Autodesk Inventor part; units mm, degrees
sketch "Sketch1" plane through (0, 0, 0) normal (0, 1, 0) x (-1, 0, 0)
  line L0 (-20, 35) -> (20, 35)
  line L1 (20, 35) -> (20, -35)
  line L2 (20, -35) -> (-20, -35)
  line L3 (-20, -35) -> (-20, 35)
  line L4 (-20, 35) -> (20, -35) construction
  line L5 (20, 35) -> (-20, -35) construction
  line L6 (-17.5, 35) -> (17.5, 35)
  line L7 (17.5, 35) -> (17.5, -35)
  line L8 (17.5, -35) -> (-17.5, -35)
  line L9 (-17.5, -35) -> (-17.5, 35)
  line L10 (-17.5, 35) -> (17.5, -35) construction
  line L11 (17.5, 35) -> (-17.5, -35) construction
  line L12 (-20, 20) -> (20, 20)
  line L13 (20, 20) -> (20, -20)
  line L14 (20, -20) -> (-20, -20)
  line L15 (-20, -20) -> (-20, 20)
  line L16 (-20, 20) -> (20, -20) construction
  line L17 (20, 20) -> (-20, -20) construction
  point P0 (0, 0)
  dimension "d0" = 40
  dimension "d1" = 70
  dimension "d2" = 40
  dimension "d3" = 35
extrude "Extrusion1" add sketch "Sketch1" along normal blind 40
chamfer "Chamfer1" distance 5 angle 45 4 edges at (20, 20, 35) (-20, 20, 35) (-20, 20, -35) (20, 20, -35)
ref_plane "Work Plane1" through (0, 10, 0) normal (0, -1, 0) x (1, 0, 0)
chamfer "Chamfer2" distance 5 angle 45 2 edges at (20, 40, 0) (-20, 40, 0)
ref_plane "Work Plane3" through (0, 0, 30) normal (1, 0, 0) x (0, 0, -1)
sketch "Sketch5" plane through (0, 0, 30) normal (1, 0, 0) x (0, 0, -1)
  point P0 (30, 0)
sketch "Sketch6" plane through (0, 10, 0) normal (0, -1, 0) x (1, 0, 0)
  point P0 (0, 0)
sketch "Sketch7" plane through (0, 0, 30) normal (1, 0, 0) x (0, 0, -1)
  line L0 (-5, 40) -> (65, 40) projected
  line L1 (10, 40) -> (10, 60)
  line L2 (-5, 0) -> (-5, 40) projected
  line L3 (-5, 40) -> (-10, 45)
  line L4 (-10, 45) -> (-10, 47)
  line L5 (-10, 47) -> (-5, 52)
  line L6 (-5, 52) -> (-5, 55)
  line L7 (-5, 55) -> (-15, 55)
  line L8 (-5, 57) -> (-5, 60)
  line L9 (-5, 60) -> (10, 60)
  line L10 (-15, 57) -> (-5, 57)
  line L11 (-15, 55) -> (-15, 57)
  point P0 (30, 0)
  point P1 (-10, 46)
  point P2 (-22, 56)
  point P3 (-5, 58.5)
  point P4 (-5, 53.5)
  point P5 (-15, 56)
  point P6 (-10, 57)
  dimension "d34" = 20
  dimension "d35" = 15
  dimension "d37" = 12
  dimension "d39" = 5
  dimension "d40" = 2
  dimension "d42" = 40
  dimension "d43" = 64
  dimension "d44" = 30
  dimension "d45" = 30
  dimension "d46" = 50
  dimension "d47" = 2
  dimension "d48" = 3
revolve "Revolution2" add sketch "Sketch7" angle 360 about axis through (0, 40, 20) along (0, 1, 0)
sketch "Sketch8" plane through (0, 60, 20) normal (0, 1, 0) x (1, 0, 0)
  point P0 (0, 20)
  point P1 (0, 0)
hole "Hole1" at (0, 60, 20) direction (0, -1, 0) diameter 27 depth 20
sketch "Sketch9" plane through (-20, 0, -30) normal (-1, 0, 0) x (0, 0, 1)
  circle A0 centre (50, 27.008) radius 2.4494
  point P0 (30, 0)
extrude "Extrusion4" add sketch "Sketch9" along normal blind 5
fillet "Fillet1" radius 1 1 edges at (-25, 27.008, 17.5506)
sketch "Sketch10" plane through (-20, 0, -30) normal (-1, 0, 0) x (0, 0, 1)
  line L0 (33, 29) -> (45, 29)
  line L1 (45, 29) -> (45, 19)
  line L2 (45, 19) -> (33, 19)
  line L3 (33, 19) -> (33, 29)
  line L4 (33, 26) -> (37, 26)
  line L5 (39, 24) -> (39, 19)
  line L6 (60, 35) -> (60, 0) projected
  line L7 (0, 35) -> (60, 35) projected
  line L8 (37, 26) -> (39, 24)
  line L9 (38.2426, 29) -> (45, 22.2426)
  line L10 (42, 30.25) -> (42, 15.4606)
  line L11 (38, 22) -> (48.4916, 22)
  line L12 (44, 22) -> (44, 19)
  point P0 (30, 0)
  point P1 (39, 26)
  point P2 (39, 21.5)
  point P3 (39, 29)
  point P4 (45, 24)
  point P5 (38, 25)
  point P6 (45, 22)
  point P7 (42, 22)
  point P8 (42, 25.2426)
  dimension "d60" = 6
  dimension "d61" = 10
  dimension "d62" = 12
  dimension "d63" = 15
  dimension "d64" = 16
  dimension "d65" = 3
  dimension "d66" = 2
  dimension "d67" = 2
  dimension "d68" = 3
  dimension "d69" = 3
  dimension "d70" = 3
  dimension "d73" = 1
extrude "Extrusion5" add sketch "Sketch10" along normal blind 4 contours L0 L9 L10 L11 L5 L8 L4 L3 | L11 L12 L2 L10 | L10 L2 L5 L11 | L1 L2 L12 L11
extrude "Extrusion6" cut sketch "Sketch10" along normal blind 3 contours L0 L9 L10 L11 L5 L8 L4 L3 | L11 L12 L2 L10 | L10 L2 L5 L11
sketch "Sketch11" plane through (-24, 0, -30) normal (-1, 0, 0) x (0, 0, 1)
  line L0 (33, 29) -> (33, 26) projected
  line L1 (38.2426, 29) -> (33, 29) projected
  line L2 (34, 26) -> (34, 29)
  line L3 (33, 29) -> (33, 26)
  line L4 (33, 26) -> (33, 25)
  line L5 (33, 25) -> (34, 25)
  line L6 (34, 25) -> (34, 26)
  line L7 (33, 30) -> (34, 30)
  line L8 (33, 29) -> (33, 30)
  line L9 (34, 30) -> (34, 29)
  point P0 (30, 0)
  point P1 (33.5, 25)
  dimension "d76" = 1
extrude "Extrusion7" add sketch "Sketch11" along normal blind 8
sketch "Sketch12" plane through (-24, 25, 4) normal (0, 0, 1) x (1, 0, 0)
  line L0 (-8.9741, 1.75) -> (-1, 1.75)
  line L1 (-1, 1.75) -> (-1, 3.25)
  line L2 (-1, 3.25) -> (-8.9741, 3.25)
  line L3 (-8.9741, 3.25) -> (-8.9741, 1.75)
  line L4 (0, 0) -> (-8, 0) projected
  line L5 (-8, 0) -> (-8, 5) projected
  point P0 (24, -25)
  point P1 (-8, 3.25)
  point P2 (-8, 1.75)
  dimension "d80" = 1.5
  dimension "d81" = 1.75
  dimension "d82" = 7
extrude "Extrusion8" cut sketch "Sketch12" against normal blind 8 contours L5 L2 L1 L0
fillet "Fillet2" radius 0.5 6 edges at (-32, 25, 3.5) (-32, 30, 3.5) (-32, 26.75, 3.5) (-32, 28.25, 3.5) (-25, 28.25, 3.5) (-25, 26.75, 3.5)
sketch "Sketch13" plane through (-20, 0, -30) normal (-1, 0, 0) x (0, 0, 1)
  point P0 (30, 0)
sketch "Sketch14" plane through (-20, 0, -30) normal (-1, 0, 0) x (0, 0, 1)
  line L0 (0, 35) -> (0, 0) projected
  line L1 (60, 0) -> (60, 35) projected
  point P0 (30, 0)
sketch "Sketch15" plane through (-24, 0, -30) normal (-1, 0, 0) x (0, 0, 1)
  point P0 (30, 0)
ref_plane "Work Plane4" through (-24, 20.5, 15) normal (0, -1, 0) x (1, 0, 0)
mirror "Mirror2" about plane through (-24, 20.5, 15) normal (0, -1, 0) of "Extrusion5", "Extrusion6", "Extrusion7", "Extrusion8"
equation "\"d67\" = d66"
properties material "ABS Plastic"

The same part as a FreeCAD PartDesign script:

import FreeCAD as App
import Part
import Sketcher
Q = App.Units.Quantity


def edges_at(feature, points):
    """Names of the edges that pass closest to the given points."""
    edges = feature.Shape.Edges
    near = lambda p: min(range(len(edges)), key=lambda i: edges[i].distToShape(Part.Vertex(*p))[0])
    return sorted({f"Edge{near(p) + 1}" for p in points})

doc = App.newDocument("Part")
body = doc.addObject("PartDesign::Body", "Body")

# Sketch on XZ plane
sketch1 = body.newObject("Sketcher::SketchObject", "Sketch")
sketch1.AttachmentSupport = (doc.getObject("XZ_Plane"), [""])
sketch1.MapMode = "FlatFace"
sketch1.addGeometry(Part.LineSegment(App.Vector(20, 35, 0), App.Vector(20, -35, 0)), False)
sketch1.addGeometry(Part.LineSegment(App.Vector(20, -35, 0), App.Vector(-20, -35, 0)), False)
sketch1.addGeometry(Part.LineSegment(App.Vector(-20, -35, 0), App.Vector(-20, 35, 0)), False)
sketch1.addGeometry(Part.LineSegment(App.Vector(-20, 35, 0), App.Vector(20, 35, 0)), False)
sketch1.addConstraint(Sketcher.Constraint("Coincident", 0, 2, 1, 1))
sketch1.addConstraint(Sketcher.Constraint("Coincident", 1, 2, 2, 1))
sketch1.addConstraint(Sketcher.Constraint("Coincident", 2, 2, 3, 1))
sketch1.addConstraint(Sketcher.Constraint("Coincident", 3, 2, 0, 1))
sketch1.addConstraint(Sketcher.Constraint("Vertical", 0))
sketch1.addConstraint(Sketcher.Constraint("Horizontal", 1))
sketch1.addConstraint(Sketcher.Constraint("Vertical", 2))
sketch1.addConstraint(Sketcher.Constraint("Horizontal", 3))
sketch1.addConstraint(Sketcher.Constraint("Symmetric", 0, 2, 2, 2, -1, 1))
sketch1.addConstraint(Sketcher.Constraint("DistanceX", 1, 2, 1, 1, Q("40 mm")))
sketch1.addConstraint(Sketcher.Constraint("DistanceY", 0, 2, 0, 1, Q("70 mm")))
pad1 = body.newObject("PartDesign::Pad", "Pad")
pad1.Profile = sketch1
pad1.Length = 40
pad1.Reversed = True
doc.recompute()

chamfer = body.newObject("PartDesign::Chamfer", "Chamfer")
chamfer.Base = (pad1, edges_at(pad1, [
    (20, 20, 35),
    (-20, 20, 35),
    (-20, 20, -35),
    (20, 20, -35),
]))
chamfer.Size = 5
doc.recompute()

chamfer2 = body.newObject("PartDesign::Chamfer", "Chamfer001")
chamfer2.Base = (chamfer, edges_at(chamfer, [(20, 40, 0), (-20, 40, 0)]))
chamfer2.Size = 5

# Sketch on YZ plane
sketch2 = body.newObject("Sketcher::SketchObject", "Sketch001")
sketch2.AttachmentSupport = (doc.getObject("YZ_Plane"), [""])
sketch2.MapMode = "FlatFace"
sketch2.addGeometry(Part.LineSegment(App.Vector(45, 40, 0), App.Vector(40, 35, 0)), False)
sketch2.addGeometry(Part.LineSegment(App.Vector(40, 35, 0), App.Vector(40, 20, 0)), False)
sketch2.addGeometry(Part.LineSegment(App.Vector(40, 20, 0), App.Vector(60, 20, 0)), False)
sketch2.addGeometry(Part.LineSegment(App.Vector(60, 20, 0), App.Vector(60, 35, 0)), False)
sketch2.addGeometry(Part.LineSegment(App.Vector(60, 35, 0), App.Vector(57, 35, 0)), False)
sketch2.addGeometry(Part.LineSegment(App.Vector(57, 35, 0), App.Vector(57, 45, 0)), False)
sketch2.addGeometry(Part.LineSegment(App.Vector(57, 45, 0), App.Vector(55, 45, 0)), False)
sketch2.addGeometry(Part.LineSegment(App.Vector(55, 45, 0), App.Vector(55, 35, 0)), False)
sketch2.addGeometry(Part.LineSegment(App.Vector(55, 35, 0), App.Vector(52, 35, 0)), False)
sketch2.addGeometry(Part.LineSegment(App.Vector(52, 35, 0), App.Vector(47, 40, 0)), False)
sketch2.addGeometry(Part.LineSegment(App.Vector(47, 40, 0), App.Vector(45, 40, 0)), False)
sketch2.addGeometry(Part.LineSegment(App.Vector(40, 20, 0), App.Vector(60, 20, 0)), True)  # axis
sketch2.addConstraint(Sketcher.Constraint("Coincident", 0, 2, 1, 1))
sketch2.addConstraint(Sketcher.Constraint("Coincident", 1, 2, 2, 1))
sketch2.addConstraint(Sketcher.Constraint("Coincident", 2, 2, 3, 1))
sketch2.addConstraint(Sketcher.Constraint("Coincident", 3, 2, 4, 1))
sketch2.addConstraint(Sketcher.Constraint("Coincident", 4, 2, 5, 1))
sketch2.addConstraint(Sketcher.Constraint("Coincident", 5, 2, 6, 1))
sketch2.addConstraint(Sketcher.Constraint("Coincident", 6, 2, 7, 1))
sketch2.addConstraint(Sketcher.Constraint("Coincident", 7, 2, 8, 1))
sketch2.addConstraint(Sketcher.Constraint("Coincident", 8, 2, 9, 1))
sketch2.addConstraint(Sketcher.Constraint("Coincident", 9, 2, 10, 1))
sketch2.addConstraint(Sketcher.Constraint("Coincident", 10, 2, 0, 1))
sketch2.addConstraint(Sketcher.Constraint("Vertical", 1))
sketch2.addConstraint(Sketcher.Constraint("Horizontal", 2))
sketch2.addConstraint(Sketcher.Constraint("Vertical", 3))
sketch2.addConstraint(Sketcher.Constraint("Horizontal", 4))
sketch2.addConstraint(Sketcher.Constraint("Vertical", 5))
sketch2.addConstraint(Sketcher.Constraint("Horizontal", 6))
sketch2.addConstraint(Sketcher.Constraint("Vertical", 7))
sketch2.addConstraint(Sketcher.Constraint("Horizontal", 8))
sketch2.addConstraint(Sketcher.Constraint("Horizontal", 10))
sketch2.addConstraint(Sketcher.Constraint("Horizontal", 11))
sketch2.addConstraint(Sketcher.Constraint("Coincident", 11, 1, 1, 2))
sketch2.addConstraint(Sketcher.Constraint("Perpendicular", 0, 9))
sketch2.addConstraint(Sketcher.Constraint("Horizontal", 0, 2, 3, 2))
sketch2.addConstraint(Sketcher.Constraint("Horizontal", 4, 2, 7, 2))
sketch2.addConstraint(Sketcher.Constraint("Vertical", 3, 2, 11, 2))
sketch2.addConstraint(Sketcher.Constraint("Equal", 4, 8))
sketch2.addConstraint(Sketcher.Constraint("Equal", 6, 10))
sketch2.addConstraint(Sketcher.Constraint("Equal", 0, 9))
sketch2.addConstraint(Sketcher.Constraint("DistanceX", 2, 1, 2, 2, Q("20 mm")))
sketch2.addConstraint(Sketcher.Constraint("DistanceX", 4, 2, 4, 1, Q("3 mm")))
sketch2.addConstraint(Sketcher.Constraint("DistanceX", 6, 2, 6, 1, Q("2 mm")))
sketch2.addConstraint(Sketcher.Constraint("DistanceY", 1, 2, 1, 1, Q("15 mm")))
sketch2.addConstraint(Sketcher.Constraint("DistanceX", -1, 1, 0, 2, Q("40 mm")))
sketch2.addConstraint(Sketcher.Constraint("DistanceY", -1, 1, 1, 2, Q("20 mm")))
sketch2.addConstraint(Sketcher.Constraint("DistanceY", 9, 2, 6, 2, Q("5 mm")))
revolution = body.newObject("PartDesign::Revolution", "Revolution")
revolution.Profile = sketch2
revolution.ReferenceAxis = (sketch2, ["Axis0"])
revolution.Angle = 360

# Sketch on XZ plane
sketch3 = body.newObject("Sketcher::SketchObject", "Sketch002")
sketch3.AttachmentSupport = (doc.getObject("XZ_Plane"), [""])
sketch3.MapMode = "FlatFace"
sketch3.AttachmentOffset = App.Placement(App.Vector(0, 0, -60), App.Rotation())
sketch3.addGeometry(Part.Circle(App.Vector(0, 20, 0), App.Vector(0, 0, 1), 13.5), False)
sketch3.addConstraint(Sketcher.Constraint("PointOnObject", 0, 3, -2))
sketch3.addConstraint(Sketcher.Constraint("Diameter", 0, Q("27 mm")))
sketch3.addConstraint(Sketcher.Constraint("DistanceY", -1, 1, 0, 3, Q("20 mm")))
doc.recompute()
hole = body.newObject("PartDesign::Hole", "Hole")
hole.Profile = sketch3
hole.ThreadType = "None"
hole.Diameter = 27
hole.DepthType = "Dimension"
hole.Depth = 20
hole.DrillPoint = "Flat"
hole.Reversed = True

# Sketch on YZ plane
sketch4 = body.newObject("Sketcher::SketchObject", "Sketch003")
sketch4.AttachmentSupport = (doc.getObject("YZ_Plane"), [""])
sketch4.MapMode = "FlatFace"
sketch4.AttachmentOffset = App.Placement(App.Vector(0, 0, -20), App.Rotation())
sketch4.addGeometry(Part.Circle(App.Vector(27.008, 20, 0), App.Vector(0, 0, 1), 2.4494), False)
sketch4.addConstraint(Sketcher.Constraint("DistanceY", -1, 1, 0, 3, Q("20 mm")))
sketch4.addConstraint(Sketcher.Constraint("Diameter", 0, Q("4.8988 mm")))
sketch4.addConstraint(Sketcher.Constraint("DistanceX", -1, 1, 0, 3, Q("27.008 mm")))
pad2 = body.newObject("PartDesign::Pad", "Pad001")
pad2.Profile = sketch4
pad2.Length = 5
pad2.Reversed = True
doc.recompute()

fillet = body.newObject("PartDesign::Fillet", "Fillet")
fillet.Base = (pad2, edges_at(pad2, [(-25, 27.008, 17.551)]))
fillet.Radius = 1

# Sketch on YZ plane
sketch5 = body.newObject("Sketcher::SketchObject", "Sketch004")
sketch5.AttachmentSupport = (doc.getObject("YZ_Plane"), [""])
sketch5.MapMode = "FlatFace"
sketch5.AttachmentOffset = App.Placement(App.Vector(0, 0, -20), App.Rotation())
sketch5.addGeometry(Part.LineSegment(App.Vector(29, 8.2426, 0), App.Vector(29, 3, 0)), False)
sketch5.addGeometry(Part.LineSegment(App.Vector(29, 3, 0), App.Vector(26, 3, 0)), False)
sketch5.addGeometry(Part.LineSegment(App.Vector(26, 3, 0), App.Vector(26, 7, 0)), False)
sketch5.addGeometry(Part.LineSegment(App.Vector(26, 7, 0), App.Vector(24, 9, 0)), False)
sketch5.addGeometry(Part.LineSegment(App.Vector(24, 9, 0), App.Vector(19, 9, 0)), False)
sketch5.addGeometry(Part.LineSegment(App.Vector(19, 9, 0), App.Vector(19, 15, 0)), False)
sketch5.addGeometry(Part.LineSegment(App.Vector(19, 15, 0), App.Vector(22, 15, 0)), False)
sketch5.addGeometry(Part.LineSegment(App.Vector(22, 15, 0), App.Vector(22, 12, 0)), False)
sketch5.addGeometry(Part.LineSegment(App.Vector(22, 12, 0), App.Vector(25.2426, 12, 0)), False)
sketch5.addGeometry(Part.LineSegment(App.Vector(25.2426, 12, 0), App.Vector(29, 8.2426, 0)), False)
sketch5.addConstraint(Sketcher.Constraint("Coincident", 0, 2, 1, 1))
sketch5.addConstraint(Sketcher.Constraint("Coincident", 1, 2, 2, 1))
sketch5.addConstraint(Sketcher.Constraint("Coincident", 2, 2, 3, 1))
sketch5.addConstraint(Sketcher.Constraint("Coincident", 3, 2, 4, 1))
sketch5.addConstraint(Sketcher.Constraint("Coincident", 4, 2, 5, 1))
sketch5.addConstraint(Sketcher.Constraint("Coincident", 5, 2, 6, 1))
sketch5.addConstraint(Sketcher.Constraint("Coincident", 6, 2, 7, 1))
sketch5.addConstraint(Sketcher.Constraint("Coincident", 7, 2, 8, 1))
sketch5.addConstraint(Sketcher.Constraint("Coincident", 8, 2, 9, 1))
sketch5.addConstraint(Sketcher.Constraint("Coincident", 9, 2, 0, 1))
sketch5.addConstraint(Sketcher.Constraint("Vertical", 0))
sketch5.addConstraint(Sketcher.Constraint("Horizontal", 1))
sketch5.addConstraint(Sketcher.Constraint("Vertical", 2))
sketch5.addConstraint(Sketcher.Constraint("Horizontal", 4))
sketch5.addConstraint(Sketcher.Constraint("Vertical", 5))
sketch5.addConstraint(Sketcher.Constraint("Horizontal", 6))
sketch5.addConstraint(Sketcher.Constraint("Vertical", 7))
sketch5.addConstraint(Sketcher.Constraint("Horizontal", 8))
sketch5.addConstraint(Sketcher.Constraint("Parallel", 3, 9))
sketch5.addConstraint(Sketcher.Constraint("Equal", 1, 6))
sketch5.addConstraint(Sketcher.Constraint("Equal", 6, 7))
sketch5.addConstraint(Sketcher.Constraint("DistanceX", 1, 2, 1, 1, Q("3 mm")))
sketch5.addConstraint(Sketcher.Constraint("DistanceY", 5, 1, 5, 2, Q("6 mm")))
sketch5.addConstraint(Sketcher.Constraint("DistanceY", -1, 1, 0, 2, Q("3 mm")))
sketch5.addConstraint(Sketcher.Constraint("DistanceY", -1, 1, 5, 2, Q("15 mm")))
sketch5.addConstraint(Sketcher.Constraint("DistanceX", 3, 2, 2, 2, Q("2 mm")))
sketch5.addConstraint(Sketcher.Constraint("DistanceY", 2, 2, 3, 2, Q("2 mm")))
sketch5.addConstraint(Sketcher.Constraint("DistanceX", 4, 2, 0, 2, Q("10 mm")))
sketch5.addConstraint(Sketcher.Constraint("DistanceX", -1, 1, 0, 2, Q("29 mm")))
sketch5.addConstraint(Sketcher.Constraint("DistanceX", 8, 1, 8, 2, Q("3.2426 mm")))
pad3 = body.newObject("PartDesign::Pad", "Pad002")
pad3.Profile = sketch5
pad3.Length = 4
pad3.Reversed = True

# Sketch on YZ plane
sketch6 = body.newObject("Sketcher::SketchObject", "Sketch005")
sketch6.AttachmentSupport = (doc.getObject("YZ_Plane"), [""])
sketch6.MapMode = "FlatFace"
sketch6.AttachmentOffset = App.Placement(App.Vector(0, 0, -20), App.Rotation())
sketch6.addGeometry(Part.LineSegment(App.Vector(29, 8.2426, 0), App.Vector(29, 3, 0)), False)
sketch6.addGeometry(Part.LineSegment(App.Vector(29, 3, 0), App.Vector(26, 3, 0)), False)
sketch6.addGeometry(Part.LineSegment(App.Vector(26, 3, 0), App.Vector(26, 7, 0)), False)
sketch6.addGeometry(Part.LineSegment(App.Vector(26, 7, 0), App.Vector(24, 9, 0)), False)
sketch6.addGeometry(Part.LineSegment(App.Vector(24, 9, 0), App.Vector(19, 9, 0)), False)
sketch6.addGeometry(Part.LineSegment(App.Vector(19, 9, 0), App.Vector(19, 14, 0)), False)
sketch6.addGeometry(Part.LineSegment(App.Vector(19, 14, 0), App.Vector(22, 14, 0)), False)
sketch6.addGeometry(Part.LineSegment(App.Vector(22, 14, 0), App.Vector(22, 12, 0)), False)
sketch6.addGeometry(Part.LineSegment(App.Vector(22, 12, 0), App.Vector(25.2426, 12, 0)), False)
sketch6.addGeometry(Part.LineSegment(App.Vector(25.2426, 12, 0), App.Vector(29, 8.2426, 0)), False)
sketch6.addConstraint(Sketcher.Constraint("Coincident", 0, 2, 1, 1))
sketch6.addConstraint(Sketcher.Constraint("Coincident", 1, 2, 2, 1))
sketch6.addConstraint(Sketcher.Constraint("Coincident", 2, 2, 3, 1))
sketch6.addConstraint(Sketcher.Constraint("Coincident", 3, 2, 4, 1))
sketch6.addConstraint(Sketcher.Constraint("Coincident", 4, 2, 5, 1))
sketch6.addConstraint(Sketcher.Constraint("Coincident", 5, 2, 6, 1))
sketch6.addConstraint(Sketcher.Constraint("Coincident", 6, 2, 7, 1))
sketch6.addConstraint(Sketcher.Constraint("Coincident", 7, 2, 8, 1))
sketch6.addConstraint(Sketcher.Constraint("Coincident", 8, 2, 9, 1))
sketch6.addConstraint(Sketcher.Constraint("Coincident", 9, 2, 0, 1))
sketch6.addConstraint(Sketcher.Constraint("Vertical", 0))
sketch6.addConstraint(Sketcher.Constraint("Horizontal", 1))
sketch6.addConstraint(Sketcher.Constraint("Vertical", 2))
sketch6.addConstraint(Sketcher.Constraint("Horizontal", 4))
sketch6.addConstraint(Sketcher.Constraint("Vertical", 5))
sketch6.addConstraint(Sketcher.Constraint("Horizontal", 6))
sketch6.addConstraint(Sketcher.Constraint("Vertical", 7))
sketch6.addConstraint(Sketcher.Constraint("Horizontal", 8))
sketch6.addConstraint(Sketcher.Constraint("Parallel", 3, 9))
sketch6.addConstraint(Sketcher.Constraint("Equal", 1, 6))
sketch6.addConstraint(Sketcher.Constraint("Equal", 4, 5))
sketch6.addConstraint(Sketcher.Constraint("DistanceX", 1, 2, 1, 1, Q("3 mm")))
sketch6.addConstraint(Sketcher.Constraint("DistanceY", 7, 2, 7, 1, Q("2 mm")))
sketch6.addConstraint(Sketcher.Constraint("DistanceY", -1, 1, 0, 2, Q("3 mm")))
sketch6.addConstraint(Sketcher.Constraint("DistanceY", -1, 1, 7, 2, Q("12 mm")))
sketch6.addConstraint(Sketcher.Constraint("DistanceX", 3, 2, 2, 2, Q("2 mm")))
sketch6.addConstraint(Sketcher.Constraint("DistanceY", 2, 2, 3, 2, Q("2 mm")))
sketch6.addConstraint(Sketcher.Constraint("DistanceY", 1, 2, 3, 2, Q("6 mm")))
sketch6.addConstraint(Sketcher.Constraint("DistanceX", -1, 1, 0, 2, Q("29 mm")))
sketch6.addConstraint(Sketcher.Constraint("DistanceX", 8, 1, 8, 2, Q("3.2426 mm")))
pocket1 = body.newObject("PartDesign::Pocket", "Pocket")
pocket1.Profile = sketch6
pocket1.Length = 3

# Sketch on YZ plane
sketch7 = body.newObject("Sketcher::SketchObject", "Sketch006")
sketch7.AttachmentSupport = (doc.getObject("YZ_Plane"), [""])
sketch7.MapMode = "FlatFace"
sketch7.AttachmentOffset = App.Placement(App.Vector(0, 0, -24), App.Rotation())
sketch7.addGeometry(Part.LineSegment(App.Vector(30, 4, 0), App.Vector(30, 3, 0)), False)
sketch7.addGeometry(Part.LineSegment(App.Vector(30, 3, 0), App.Vector(25, 3, 0)), False)
sketch7.addGeometry(Part.LineSegment(App.Vector(25, 3, 0), App.Vector(25, 4, 0)), False)
sketch7.addGeometry(Part.LineSegment(App.Vector(25, 4, 0), App.Vector(30, 4, 0)), False)
sketch7.addConstraint(Sketcher.Constraint("Coincident", 0, 2, 1, 1))
sketch7.addConstraint(Sketcher.Constraint("Coincident", 1, 2, 2, 1))
sketch7.addConstraint(Sketcher.Constraint("Coincident", 2, 2, 3, 1))
sketch7.addConstraint(Sketcher.Constraint("Coincident", 3, 2, 0, 1))
sketch7.addConstraint(Sketcher.Constraint("Vertical", 0))
sketch7.addConstraint(Sketcher.Constraint("Horizontal", 1))
sketch7.addConstraint(Sketcher.Constraint("Vertical", 2))
sketch7.addConstraint(Sketcher.Constraint("Horizontal", 3))
sketch7.addConstraint(Sketcher.Constraint("DistanceY", 0, 2, 0, 1, Q("1 mm")))
sketch7.addConstraint(Sketcher.Constraint("DistanceX", 1, 2, 1, 1, Q("5 mm")))
sketch7.addConstraint(Sketcher.Constraint("DistanceX", -1, 1, 0, 2, Q("30 mm")))
sketch7.addConstraint(Sketcher.Constraint("DistanceY", -1, 1, 0, 2, Q("3 mm")))
pad4 = body.newObject("PartDesign::Pad", "Pad003")
pad4.Profile = sketch7
pad4.Length = 8
pad4.Reversed = True

# Sketch on XY plane
sketch8 = body.newObject("Sketcher::SketchObject", "Sketch007")
sketch8.AttachmentSupport = (doc.getObject("XY_Plane"), [""])
sketch8.MapMode = "FlatFace"
sketch8.AttachmentOffset = App.Placement(App.Vector(0, 0, 4), App.Rotation())
sketch8.addGeometry(Part.LineSegment(App.Vector(-32, 28.25, 0), App.Vector(-32, 26.75, 0)), False)
sketch8.addGeometry(Part.LineSegment(App.Vector(-32, 26.75, 0), App.Vector(-25, 26.75, 0)), False)
sketch8.addGeometry(Part.LineSegment(App.Vector(-25, 26.75, 0), App.Vector(-25, 28.25, 0)), False)
sketch8.addGeometry(Part.LineSegment(App.Vector(-25, 28.25, 0), App.Vector(-32, 28.25, 0)), False)
sketch8.addConstraint(Sketcher.Constraint("Coincident", 0, 2, 1, 1))
sketch8.addConstraint(Sketcher.Constraint("Coincident", 1, 2, 2, 1))
sketch8.addConstraint(Sketcher.Constraint("Coincident", 2, 2, 3, 1))
sketch8.addConstraint(Sketcher.Constraint("Coincident", 3, 2, 0, 1))
sketch8.addConstraint(Sketcher.Constraint("Vertical", 0))
sketch8.addConstraint(Sketcher.Constraint("Horizontal", 1))
sketch8.addConstraint(Sketcher.Constraint("Vertical", 2))
sketch8.addConstraint(Sketcher.Constraint("Horizontal", 3))
sketch8.addConstraint(Sketcher.Constraint("DistanceX", 1, 1, 1, 2, Q("7 mm")))
sketch8.addConstraint(Sketcher.Constraint("DistanceY", 0, 2, 0, 1, Q("1.5 mm")))
sketch8.addConstraint(Sketcher.Constraint("DistanceX", 0, 2, -1, 1, Q("32 mm")))
sketch8.addConstraint(Sketcher.Constraint("DistanceY", -1, 1, 0, 2, Q("26.75 mm")))
pocket2 = body.newObject("PartDesign::Pocket", "Pocket001")
pocket2.Profile = sketch8
pocket2.Length = 8
doc.recompute()

fillet2 = body.newObject("PartDesign::Fillet", "Fillet001")
fillet2.Base = (pocket2, edges_at(pocket2, [
    (-32, 25, 3.5),
    (-32, 30, 3.5),
    (-32, 26.75, 3.5),
    (-32, 28.25, 3.5),
    (-25, 28.25, 3.5),
    (-25, 26.75, 3.5),
]))
fillet2.Radius = 0.5
doc.recompute()

datumplane = body.newObject("PartDesign::Plane", "DatumPlane")
datumplane.AttachmentSupport = (doc.getObject("XZ_Plane"), [""])
datumplane.MapMode = "FlatFace"
datumplane.AttachmentOffset = App.Placement(App.Vector(0, 0, -20.5), App.Rotation())
mirrored = body.newObject("PartDesign::Mirrored", "Mirrored")
mirrored.Originals = [pad3, pocket1, pad4, pocket2]
mirrored.MirrorPlane = (datumplane, [""])
body.Tip = mirrored

doc.recompute()
